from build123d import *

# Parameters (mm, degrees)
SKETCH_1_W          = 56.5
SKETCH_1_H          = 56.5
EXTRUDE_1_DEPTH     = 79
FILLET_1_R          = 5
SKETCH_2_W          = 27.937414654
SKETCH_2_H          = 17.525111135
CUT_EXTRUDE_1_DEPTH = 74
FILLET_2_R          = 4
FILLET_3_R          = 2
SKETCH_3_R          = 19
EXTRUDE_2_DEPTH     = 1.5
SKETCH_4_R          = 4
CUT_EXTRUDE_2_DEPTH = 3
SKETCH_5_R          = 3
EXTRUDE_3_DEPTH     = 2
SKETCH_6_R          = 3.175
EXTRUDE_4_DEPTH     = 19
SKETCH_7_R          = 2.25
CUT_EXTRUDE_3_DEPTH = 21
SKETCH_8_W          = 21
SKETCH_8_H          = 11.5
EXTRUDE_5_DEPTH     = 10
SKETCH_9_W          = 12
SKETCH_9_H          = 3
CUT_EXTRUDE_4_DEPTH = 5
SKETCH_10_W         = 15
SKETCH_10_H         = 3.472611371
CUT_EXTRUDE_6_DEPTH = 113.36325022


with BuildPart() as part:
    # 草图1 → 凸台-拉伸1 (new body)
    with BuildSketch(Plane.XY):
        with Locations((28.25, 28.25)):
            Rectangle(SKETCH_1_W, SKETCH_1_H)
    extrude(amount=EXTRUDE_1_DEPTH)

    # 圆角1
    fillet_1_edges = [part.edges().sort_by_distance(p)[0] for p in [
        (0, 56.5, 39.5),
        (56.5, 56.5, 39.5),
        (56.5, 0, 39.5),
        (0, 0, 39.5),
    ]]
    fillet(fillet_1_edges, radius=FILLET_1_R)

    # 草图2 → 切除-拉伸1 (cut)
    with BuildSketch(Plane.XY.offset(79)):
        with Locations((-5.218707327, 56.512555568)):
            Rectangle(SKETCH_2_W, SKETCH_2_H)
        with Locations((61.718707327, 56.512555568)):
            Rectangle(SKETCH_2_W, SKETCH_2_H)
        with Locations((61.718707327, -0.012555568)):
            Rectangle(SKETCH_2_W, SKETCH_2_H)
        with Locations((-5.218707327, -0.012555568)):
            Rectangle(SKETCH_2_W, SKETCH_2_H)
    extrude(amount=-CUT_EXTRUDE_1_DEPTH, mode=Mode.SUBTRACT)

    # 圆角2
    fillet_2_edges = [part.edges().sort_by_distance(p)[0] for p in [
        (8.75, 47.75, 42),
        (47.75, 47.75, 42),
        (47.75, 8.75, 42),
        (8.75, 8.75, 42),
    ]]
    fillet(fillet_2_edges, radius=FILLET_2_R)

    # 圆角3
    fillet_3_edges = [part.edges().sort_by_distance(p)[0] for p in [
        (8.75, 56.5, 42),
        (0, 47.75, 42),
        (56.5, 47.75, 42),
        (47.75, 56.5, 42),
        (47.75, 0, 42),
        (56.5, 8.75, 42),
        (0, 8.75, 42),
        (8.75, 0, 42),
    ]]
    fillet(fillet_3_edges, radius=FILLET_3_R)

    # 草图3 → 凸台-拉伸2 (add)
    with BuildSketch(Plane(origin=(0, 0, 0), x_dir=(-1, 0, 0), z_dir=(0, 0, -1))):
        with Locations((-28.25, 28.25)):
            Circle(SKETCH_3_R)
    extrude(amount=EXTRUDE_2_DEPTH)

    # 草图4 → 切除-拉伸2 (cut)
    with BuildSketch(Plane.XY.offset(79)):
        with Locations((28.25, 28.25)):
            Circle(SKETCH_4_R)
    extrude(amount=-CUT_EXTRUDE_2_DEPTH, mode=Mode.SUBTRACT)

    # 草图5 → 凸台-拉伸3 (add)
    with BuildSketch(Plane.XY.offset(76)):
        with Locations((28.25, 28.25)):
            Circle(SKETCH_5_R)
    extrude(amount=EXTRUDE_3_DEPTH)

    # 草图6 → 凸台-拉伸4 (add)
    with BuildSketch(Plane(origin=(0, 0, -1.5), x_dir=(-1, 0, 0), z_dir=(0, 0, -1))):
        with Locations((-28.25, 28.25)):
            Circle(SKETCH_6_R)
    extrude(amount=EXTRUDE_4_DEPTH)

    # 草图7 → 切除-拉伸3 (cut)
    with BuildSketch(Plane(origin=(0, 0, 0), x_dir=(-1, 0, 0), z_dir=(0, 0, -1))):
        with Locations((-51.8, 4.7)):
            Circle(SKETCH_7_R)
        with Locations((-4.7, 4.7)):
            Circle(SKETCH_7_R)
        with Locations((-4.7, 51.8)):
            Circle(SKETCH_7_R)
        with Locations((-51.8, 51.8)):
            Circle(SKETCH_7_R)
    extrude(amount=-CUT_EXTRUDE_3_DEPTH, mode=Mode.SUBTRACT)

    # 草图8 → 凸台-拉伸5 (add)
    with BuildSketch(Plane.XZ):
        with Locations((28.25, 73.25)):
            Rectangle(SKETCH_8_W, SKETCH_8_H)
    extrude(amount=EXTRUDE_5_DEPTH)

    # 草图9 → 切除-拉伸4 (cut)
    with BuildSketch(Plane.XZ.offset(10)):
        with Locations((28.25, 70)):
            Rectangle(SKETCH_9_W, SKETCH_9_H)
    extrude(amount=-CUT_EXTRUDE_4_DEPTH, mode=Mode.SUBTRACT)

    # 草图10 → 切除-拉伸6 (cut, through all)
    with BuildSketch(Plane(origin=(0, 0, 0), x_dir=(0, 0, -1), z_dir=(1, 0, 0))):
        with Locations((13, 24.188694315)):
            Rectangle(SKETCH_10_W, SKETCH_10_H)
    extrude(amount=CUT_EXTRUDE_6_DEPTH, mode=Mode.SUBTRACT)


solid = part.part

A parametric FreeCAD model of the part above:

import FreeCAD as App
import Part
import Sketcher
from FreeCAD import Vector


def edges_at(feature, points):
    """Names of the edges that pass closest to the given points."""
    edges = feature.Shape.Edges
    near = lambda p: min(range(len(edges)), key=lambda i: edges[i].distToShape(Part.Vertex(*p))[0])
    return sorted({f"Edge{near(p) + 1}" for p in points})

doc = App.newDocument("Part")
body = doc.addObject("PartDesign::Body", "Body")

# Sketch on XY plane
sketch1 = body.newObject("Sketcher::SketchObject", "Sketch")
sketch1.AttachmentSupport = (doc.getObject("XY_Plane"), [""])
sketch1.MapMode = "FlatFace"
sketch1.addGeometry(Part.LineSegment(Vector(0, 56, 0), Vector(0, 0, 0)), False)
sketch1.addGeometry(Part.LineSegment(Vector(0, 0, 0), Vector(56, 0, 0)), False)
sketch1.addGeometry(Part.LineSegment(Vector(56, 0, 0), Vector(56, 56, 0)), False)
sketch1.addGeometry(Part.LineSegment(Vector(56, 56, 0), Vector(0, 56, 0)), False)
sketch1.addConstraint(Sketcher.Constraint("Coincident", 0, 2, 1, 1))
sketch1.addConstraint(Sketcher.Constraint("Coincident", 1, 2, 2, 1))
sketch1.addConstraint(Sketcher.Constraint("Coincident", 2, 2, 3, 1))
sketch1.addConstraint(Sketcher.Constraint("Coincident", 3, 2, 0, 1))
sketch1.addConstraint(Sketcher.Constraint("Vertical", 0))
sketch1.addConstraint(Sketcher.Constraint("Horizontal", 1))
sketch1.addConstraint(Sketcher.Constraint("Vertical", 2))
sketch1.addConstraint(Sketcher.Constraint("Horizontal", 3))
sketch1.addConstraint(Sketcher.Constraint("Coincident", 0, 2, -1, 1))
sketch1.addConstraint(Sketcher.Constraint("Equal", 3, 0))
sketch1.addConstraint(Sketcher.Constraint("DistanceX", 1, 1, 1, 2, 56.5))
pad1 = body.newObject("PartDesign::Pad", "Pad")
pad1.Profile = sketch1
pad1.Length = 79
doc.recompute()

fillet = body.newObject("PartDesign::Fillet", "Fillet")
fillet.Base = (pad1, edges_at(pad1, [
    (0, 56.5, 39.5),
    (56.5, 56.5, 39.5),
    (56.5, 0, 39.5),
    (0, 0, 39.5),
]))
fillet.Radius = 5

# Sketch on XY plane
sketch2 = body.newObject("Sketcher::SketchObject", "Sketch001")
sketch2.AttachmentSupport = (doc.getObject("XY_Plane"), [""])
sketch2.MapMode = "FlatFace"
sketch2.AttachmentOffset = App.Placement(Vector(0, 0, 79), App.Rotation())
sketch2.addGeometry(Part.LineSegment(Vector(-19, 65, 0), Vector(-19, 48, 0)), False)
sketch2.addGeometry(Part.LineSegment(Vector(-19, 48, 0), Vector(9, 48, 0)), False)
sketch2.addGeometry(Part.LineSegment(Vector(9, 48, 0), Vector(9, 65, 0)), False)
sketch2.addGeometry(Part.LineSegment(Vector(9, 65, 0), Vector(-19, 65, 0)), False)
sketch2.addGeometry(Part.LineSegment(Vector(48, 65, 0), Vector(48, 48, 0)), False)
sketch2.addGeometry(Part.LineSegment(Vector(48, 48, 0), Vector(76, 48, 0)), False)
sketch2.addGeometry(Part.LineSegment(Vector(76, 48, 0), Vector(76, 65, 0)), False)
sketch2.addGeometry(Part.LineSegment(Vector(76, 65, 0), Vector(48, 65, 0)), False)
sketch2.addGeometry(Part.LineSegment(Vector(48, 9, 0), Vector(48, -9, 0)), False)
sketch2.addGeometry(Part.LineSegment(Vector(48, -9, 0), Vector(76, -9, 0)), False)
sketch2.addGeometry(Part.LineSegment(Vector(76, -9, 0), Vector(76, 9, 0)), False)
sketch2.addGeometry(Part.LineSegment(Vector(76, 9, 0), Vector(48, 9, 0)), False)
sketch2.addGeometry(Part.LineSegment(Vector(-19, 9, 0), Vector(-19, -9, 0)), False)
sketch2.addGeometry(Part.LineSegment(Vector(-19, -9, 0), Vector(9, -9, 0)), False)
sketch2.addGeometry(Part.LineSegment(Vector(9, -9, 0), Vector(9, 9, 0)), False)
sketch2.addGeometry(Part.LineSegment(Vector(9, 9, 0), Vector(-19, 9, 0)), False)
sketch2.addConstraint(Sketcher.Constraint("Coincident", 0, 2, 1, 1))
sketch2.addConstraint(Sketcher.Constraint("Coincident", 1, 2, 2, 1))
sketch2.addConstraint(Sketcher.Constraint("Coincident", 2, 2, 3, 1))
sketch2.addConstraint(Sketcher.Constraint("Coincident", 3, 2, 0, 1))
sketch2.addConstraint(Sketcher.Constraint("Coincident", 4, 2, 5, 1))
sketch2.addConstraint(Sketcher.Constraint("Coincident", 5, 2, 6, 1))
sketch2.addConstraint(Sketcher.Constraint("Coincident", 6, 2, 7, 1))
sketch2.addConstraint(Sketcher.Constraint("Coincident", 7, 2, 4, 1))
sketch2.addConstraint(Sketcher.Constraint("Coincident", 8, 2, 9, 1))
sketch2.addConstraint(Sketcher.Constraint("Coincident", 9, 2, 10, 1))
sketch2.addConstraint(Sketcher.Constraint("Coincident", 10, 2, 11, 1))
sketch2.addConstraint(Sketcher.Constraint("Coincident", 11, 2, 8, 1))
sketch2.addConstraint(Sketcher.Constraint("Coincident", 12, 2, 13, 1))
sketch2.addConstraint(Sketcher.Constraint("Coincident", 13, 2, 14, 1))
sketch2.addConstraint(Sketcher.Constraint("Coincident", 14, 2, 15, 1))
sketch2.addConstraint(Sketcher.Constraint("Coincident", 15, 2, 12, 1))
sketch2.addConstraint(Sketcher.Constraint("Vertical", 0))
sketch2.addConstraint(Sketcher.Constraint("Horizontal", 1))
sketch2.addConstraint(Sketcher.Constraint("Vertical", 2))
sketch2.addConstraint(Sketcher.Constraint("Horizontal", 3))
sketch2.addConstraint(Sketcher.Constraint("Vertical", 4))
sketch2.addConstraint(Sketcher.Constraint("Horizontal", 5))
sketch2.addConstraint(Sketcher.Constraint("Vertical", 6))
sketch2.addConstraint(Sketcher.Constraint("Horizontal", 7))
sketch2.addConstraint(Sketcher.Constraint("Vertical", 8))
sketch2.addConstraint(Sketcher.Constraint("Horizontal", 9))
sketch2.addConstraint(Sketcher.Constraint("Vertical", 10))
sketch2.addConstraint(Sketcher.Constraint("Horizontal", 11))
sketch2.addConstraint(Sketcher.Constraint("Vertical", 12))
sketch2.addConstraint(Sketcher.Constraint("Horizontal", 13))
sketch2.addConstraint(Sketcher.Constraint("Vertical", 14))
sketch2.addConstraint(Sketcher.Constraint("Horizontal", 15))
sketch2.addConstraint(Sketcher.Constraint("Horizontal", 1, 2, 4, 2))
sketch2.addConstraint(Sketcher.Constraint("Horizontal", 3, 2, 6, 2))
sketch2.addConstraint(Sketcher.Constraint("Horizontal", 9, 2, 12, 2))
sketch2.addConstraint(Sketcher.Constraint("Horizontal", 11, 2, 14, 2))
sketch2.addConstraint(Sketcher.Constraint("Vertical", 7, 2, 8, 2))
sketch2.addConstraint(Sketcher.Constraint("Vertical", 6, 2, 9, 2))
sketch2.addConstraint(Sketcher.Constraint("Vertical", 3, 2, 12, 2))
sketch2.addConstraint(Sketcher.Constraint("Vertical", 2, 2, 13, 2))
sketch2.addConstraint(Sketcher.Constraint("Equal", 3, 5))
sketch2.addConstraint(Sketcher.Constraint("Equal", 6, 8))
sketch2.addConstraint(Sketcher.Constraint("DistanceX", 1, 2, 4, 2, 39.0))
sketch2.addConstraint(Sketcher.Constraint("DistanceY", 10, 2, 5, 2, 39.0))
sketch2.addConstraint(Sketcher.Constraint("DistanceY", -1, 1, 0, 2, 47.75))
sketch2.addConstraint(Sketcher.Constraint("DistanceX", -1, 1, 1, 2, 8.75))
sketch2.addConstraint(Sketcher.Constraint("DistanceY", 0, 2, 0, 1, 17.525111))
sketch2.addConstraint(Sketcher.Constraint("DistanceX", 1, 1, 1, 2, 27.937415))
pocket1 = body.newObject("PartDesign::Pocket", "Pocket")
pocket1.Profile = sketch2
pocket1.Length = 74
doc.recompute()

fillet2 = body.newObject("PartDesign::Fillet", "Fillet001")
fillet2.Base = (pocket1, edges_at(pocket1, [
    (8.75, 47.75, 42),
    (47.75, 47.75, 42),
    (47.75, 8.75, 42),
    (8.75, 8.75, 42),
]))
fillet2.Radius = 4
doc.recompute()

fillet3 = body.newObject("PartDesign::Fillet", "Fillet002")
fillet3.Base = (fillet2, edges_at(fillet2, [
    (8.75, 56.5, 42),
    (0, 47.75, 42),
    (56.5, 47.75, 42),
    (47.75, 56.5, 42),
    (47.75, 0, 42),
    (56.5, 8.75, 42),
    (0, 8.75, 42),
    (8.75, 0, 42),
]))
fillet3.Radius = 2

# Sketch on XY plane
sketch3 = body.newObject("Sketcher::SketchObject", "Sketch002")
sketch3.AttachmentSupport = (doc.getObject("XY_Plane"), [""])
sketch3.MapMode = "FlatFace"
sketch3.addGeometry(Part.Circle(Vector(28, 28, 0), Vector(0, 0, 1), 19), False)
sketch3.addConstraint(Sketcher.Constraint("Diameter", 0, 38.0))
sketch3.addConstraint(Sketcher.Constraint("DistanceX", -1, 1, 0, 3, 28.25))
sketch3.addConstraint(Sketcher.Constraint("DistanceY", -1, 1, 0, 3, 28.25))
pad2 = body.newObject("PartDesign::Pad", "Pad001")
pad2.Profile = sketch3
pad2.Length = 1.5
pad2.Reversed = True

# Sketch on XY plane
sketch4 = body.newObject("Sketcher::SketchObject", "Sketch003")
sketch4.AttachmentSupport = (doc.getObject("XY_Plane"), [""])
sketch4.MapMode = "FlatFace"
sketch4.AttachmentOffset = App.Placement(Vector(0, 0, 79), App.Rotation())
sketch4.addGeometry(Part.Circle(Vector(28.2, 28.2, 0), Vector(0, 0, 1), 4), False)
sketch4.addConstraint(Sketcher.Constraint("Diameter", 0, 8.0))
sketch4.addConstraint(Sketcher.Constraint("DistanceX", -1, 1, 0, 3, 28.25))
sketch4.addConstraint(Sketcher.Constraint("DistanceY", -1, 1, 0, 3, 28.25))
pocket2 = body.newObject("PartDesign::Pocket", "Pocket001")
pocket2.Profile = sketch4
pocket2.Length = 3

# Sketch on XY plane
sketch5 = body.newObject("Sketcher::SketchObject", "Sketch004")
sketch5.AttachmentSupport = (doc.getObject("XY_Plane"), [""])
sketch5.MapMode = "FlatFace"
sketch5.AttachmentOffset = App.Placement(Vector(0, 0, 76), App.Rotation())
sketch5.addGeometry(Part.Circle(Vector(28.2, 28.2, 0), Vector(0, 0, 1), 3), False)
sketch5.addConstraint(Sketcher.Constraint("Diameter", 0, 6.0))
sketch5.addConstraint(Sketcher.Constraint("DistanceX", -1, 1, 0, 3, 28.25))
sketch5.addConstraint(Sketcher.Constraint("DistanceY", -1, 1, 0, 3, 28.25))
pad3 = body.newObject("PartDesign::Pad", "Pad002")
pad3.Profile = sketch5
pad3.Length = 2

# Sketch on XY plane
sketch6 = body.newObject("Sketcher::SketchObject", "Sketch005")
sketch6.AttachmentSupport = (doc.getObject("XY_Plane"), [""])
sketch6.MapMode = "FlatFace"
sketch6.AttachmentOffset = App.Placement(Vector(0, 0, -1.5), App.Rotation())
sketch6.addGeometry(Part.Circle(Vector(28.2, 28.2, 0), Vector(0, 0, 1), 3.2), False)
sketch6.addConstraint(Sketcher.Constraint("Diameter", 0, 6.35))
sketch6.addConstraint(Sketcher.Constraint("DistanceX", -1, 1, 0, 3, 28.25))
sketch6.addConstraint(Sketcher.Constraint("DistanceY", -1, 1, 0, 3, 28.25))
pad4 = body.newObject("PartDesign::Pad", "Pad003")
pad4.Profile = sketch6
pad4.Length = 19
pad4.Reversed = True

# Sketch on XY plane
sketch7 = body.newObject("Sketcher::SketchObject", "Sketch006")
sketch7.AttachmentSupport = (doc.getObject("XY_Plane"), [""])
sketch7.MapMode = "FlatFace"
sketch7.addGeometry(Part.Circle(Vector(51.8, 4.7, 0), Vector(0, 0, 1), 2.2), False)
sketch7.addGeometry(Part.Circle(Vector(4.7, 4.7, 0), Vector(0, 0, 1), 2.2), False)
sketch7.addGeometry(Part.Circle(Vector(4.7, 51.8, 0), Vector(0, 0, 1), 2.2), False)
sketch7.addGeometry(Part.Circle(Vector(51.8, 51.8, 0), Vector(0, 0, 1), 2.2), False)
sketch7.addConstraint(Sketcher.Constraint("Equal", 0, 1))
sketch7.addConstraint(Sketcher.Constraint("Equal", 1, 2))
sketch7.addConstraint(Sketcher.Constraint("Equal", 2, 3))
sketch7.addConstraint(Sketcher.Constraint("Horizontal", 0, 3, 1, 3))
sketch7.addConstraint(Sketcher.Constraint("Horizontal", 2, 3, 3, 3))
sketch7.addConstraint(Sketcher.Constraint("Vertical", 1, 3, 2, 3))
sketch7.addConstraint(Sketcher.Constraint("Vertical", 0, 3, 3, 3))
sketch7.addConstraint(Sketcher.Constraint("Diameter", 0, 4.5))
sketch7.addConstraint(Sketcher.Constraint("DistanceX", -1, 1, 0, 3, 51.8))
sketch7.addConstraint(Sketcher.Constraint("DistanceY", -1, 1, 0, 3, 4.7))
sketch7.addConstraint(Sketcher.Constraint("DistanceX", -1, 1, 1, 3, 4.7))
sketch7.addConstraint(Sketcher.Constraint("DistanceY", -1, 1, 2, 3, 51.8))
pocket3 = body.newObject("PartDesign::Pocket", "Pocket002")
pocket3.Profile = sketch7
pocket3.Length = 21
pocket3.Reversed = True

# Sketch on XZ plane
sketch8 = body.newObject("Sketcher::SketchObject", "Sketch007")
sketch8.AttachmentSupport = (doc.getObject("XZ_Plane"), [""])
sketch8.MapMode = "FlatFace"
sketch8.addGeometry(Part.LineSegment(Vector(18, 79, 0), Vector(18, 68, 0)), False)
sketch8.addGeometry(Part.LineSegment(Vector(18, 68, 0), Vector(39, 68, 0)), False)
sketch8.addGeometry(Part.LineSegment(Vector(39, 68, 0), Vector(39, 79, 0)), False)
sketch8.addGeometry(Part.LineSegment(Vector(39, 79, 0), Vector(18, 79, 0)), False)
sketch8.addConstraint(Sketcher.Constraint("Coincident", 0, 2, 1, 1))
sketch8.addConstraint(Sketcher.Constraint("Coincident", 1, 2, 2, 1))
sketch8.addConstraint(Sketcher.Constraint("Coincident", 2, 2, 3, 1))
sketch8.addConstraint(Sketcher.Constraint("Coincident", 3, 2, 0, 1))
sketch8.addConstraint(Sketcher.Constraint("Vertical", 0))
sketch8.addConstraint(Sketcher.Constraint("Horizontal", 1))
sketch8.addConstraint(Sketcher.Constraint("Vertical", 2))
sketch8.addConstraint(Sketcher.Constraint("Horizontal", 3))
sketch8.addConstraint(Sketcher.Constraint("DistanceX", 1, 1, 1, 2, 21.0))
sketch8.addConstraint(Sketcher.Constraint("DistanceY", 0, 2, 0, 1, 11.5))
sketch8.addConstraint(Sketcher.Constraint("DistanceY", -1, 1, 2, 2, 79.0))
sketch8.addConstraint(Sketcher.Constraint("DistanceX", -1, 1, 0, 2, 17.75))
pad5 = body.newObject("PartDesign::Pad", "Pad004")
pad5.Profile = sketch8
pad5.Length = 10

# Sketch on XZ plane
sketch9 = body.newObject("Sketcher::SketchObject", "Sketch008")
sketch9.AttachmentSupport = (doc.getObject("XZ_Plane"), [""])
sketch9.MapMode = "FlatFace"
sketch9.AttachmentOffset = App.Placement(Vector(0, 0, 10), App.Rotation())
sketch9.addGeometry(Part.LineSegment(Vector(22.2, 71.5, 0), Vector(22.2, 68.5, 0)), False)
sketch9.addGeometry(Part.LineSegment(Vector(22.2, 68.5, 0), Vector(34.2, 68.5, 0)), False)
sketch9.addGeometry(Part.LineSegment(Vector(34.2, 68.5, 0), Vector(34.2, 71.5, 0)), False)
sketch9.addGeometry(Part.LineSegment(Vector(34.2, 71.5, 0), Vector(22.2, 71.5, 0)), False)
sketch9.addConstraint(Sketcher.Constraint("Coincident", 0, 2, 1, 1))
sketch9.addConstraint(Sketcher.Constraint("Coincident", 1, 2, 2, 1))
sketch9.addConstraint(Sketcher.Constraint("Coincident", 2, 2, 3, 1))
sketch9.addConstraint(Sketcher.Constraint("Coincident", 3, 2, 0, 1))
sketch9.addConstraint(Sketcher.Constraint("Vertical", 0))
sketch9.addConstraint(Sketcher.Constraint("Horizontal", 1))
sketch9.addConstraint(Sketcher.Constraint("Vertical", 2))
sketch9.addConstraint(Sketcher.Constraint("Horizontal", 3))
sketch9.addConstraint(Sketcher.Constraint("DistanceX", 1, 1, 1, 2, 12.0))
sketch9.addConstraint(Sketcher.Constraint("DistanceY", 0, 2, 0, 1, 3.0))
sketch9.addConstraint(Sketcher.Constraint("DistanceY", -1, 1, 0, 2, 68.5))
sketch9.addConstraint(Sketcher.Constraint("DistanceX", -1, 1, 0, 2, 22.25))
pocket4 = body.newObject("PartDesign::Pocket", "Pocket003")
pocket4.Profile = sketch9
pocket4.Length = 5

# Sketch on YZ plane
sketch10 = body.newObject("Sketcher::SketchObject", "Sketch009")
sketch10.AttachmentSupport = (doc.getObject("YZ_Plane"), [""])
sketch10.MapMode = "FlatFace"
sketch10.addGeometry(Part.LineSegment(Vector(25.9, -5.5, 0), Vector(22.5, -5.5, 0)), False)
sketch10.addGeometry(Part.LineSegment(Vector(22.5, -5.5, 0), Vector(22.5, -20.5, 0)), False)
sketch10.addGeometry(Part.LineSegment(Vector(22.5, -20.5, 0), Vector(25.9, -20.5, 0)), False)
sketch10.addGeometry(Part.LineSegment(Vector(25.9, -20.5, 0), Vector(25.9, -5.5, 0)), False)
sketch10.addConstraint(Sketcher.Constraint("Coincident", 0, 2, 1, 1))
sketch10.addConstraint(Sketcher.Constraint("Coincident", 1, 2, 2, 1))
sketch10.addConstraint(Sketcher.Constraint("Coincident", 2, 2, 3, 1))
sketch10.addConstraint(Sketcher.Constraint("Coincident", 3, 2, 0, 1))
sketch10.addConstraint(Sketcher.Constraint("Horizontal", 0))
sketch10.addConstraint(Sketcher.Constraint("Vertical", 1))
sketch10.addConstraint(Sketcher.Constraint("Horizontal", 2))
sketch10.addConstraint(Sketcher.Constraint("Vertical", 3))
sketch10.addConstraint(Sketcher.Constraint("DistanceY", 1, 2, 1, 1, 15.0))
sketch10.addConstraint(Sketcher.Constraint("DistanceY", 0, 2, -1, 1, 5.5))
sketch10.addConstraint(Sketcher.Constraint("DistanceX", -1, 1, 2, 2, 25.925))
sketch10.addConstraint(Sketcher.Constraint("DistanceX", 0, 2, 0, 1, 3.472611))
pocket5 = body.newObject("PartDesign::Pocket", "Pocket004")
pocket5.Profile = sketch10
pocket5.Type = "ThroughAll"
pocket5.Reversed = True

doc.recompute()
